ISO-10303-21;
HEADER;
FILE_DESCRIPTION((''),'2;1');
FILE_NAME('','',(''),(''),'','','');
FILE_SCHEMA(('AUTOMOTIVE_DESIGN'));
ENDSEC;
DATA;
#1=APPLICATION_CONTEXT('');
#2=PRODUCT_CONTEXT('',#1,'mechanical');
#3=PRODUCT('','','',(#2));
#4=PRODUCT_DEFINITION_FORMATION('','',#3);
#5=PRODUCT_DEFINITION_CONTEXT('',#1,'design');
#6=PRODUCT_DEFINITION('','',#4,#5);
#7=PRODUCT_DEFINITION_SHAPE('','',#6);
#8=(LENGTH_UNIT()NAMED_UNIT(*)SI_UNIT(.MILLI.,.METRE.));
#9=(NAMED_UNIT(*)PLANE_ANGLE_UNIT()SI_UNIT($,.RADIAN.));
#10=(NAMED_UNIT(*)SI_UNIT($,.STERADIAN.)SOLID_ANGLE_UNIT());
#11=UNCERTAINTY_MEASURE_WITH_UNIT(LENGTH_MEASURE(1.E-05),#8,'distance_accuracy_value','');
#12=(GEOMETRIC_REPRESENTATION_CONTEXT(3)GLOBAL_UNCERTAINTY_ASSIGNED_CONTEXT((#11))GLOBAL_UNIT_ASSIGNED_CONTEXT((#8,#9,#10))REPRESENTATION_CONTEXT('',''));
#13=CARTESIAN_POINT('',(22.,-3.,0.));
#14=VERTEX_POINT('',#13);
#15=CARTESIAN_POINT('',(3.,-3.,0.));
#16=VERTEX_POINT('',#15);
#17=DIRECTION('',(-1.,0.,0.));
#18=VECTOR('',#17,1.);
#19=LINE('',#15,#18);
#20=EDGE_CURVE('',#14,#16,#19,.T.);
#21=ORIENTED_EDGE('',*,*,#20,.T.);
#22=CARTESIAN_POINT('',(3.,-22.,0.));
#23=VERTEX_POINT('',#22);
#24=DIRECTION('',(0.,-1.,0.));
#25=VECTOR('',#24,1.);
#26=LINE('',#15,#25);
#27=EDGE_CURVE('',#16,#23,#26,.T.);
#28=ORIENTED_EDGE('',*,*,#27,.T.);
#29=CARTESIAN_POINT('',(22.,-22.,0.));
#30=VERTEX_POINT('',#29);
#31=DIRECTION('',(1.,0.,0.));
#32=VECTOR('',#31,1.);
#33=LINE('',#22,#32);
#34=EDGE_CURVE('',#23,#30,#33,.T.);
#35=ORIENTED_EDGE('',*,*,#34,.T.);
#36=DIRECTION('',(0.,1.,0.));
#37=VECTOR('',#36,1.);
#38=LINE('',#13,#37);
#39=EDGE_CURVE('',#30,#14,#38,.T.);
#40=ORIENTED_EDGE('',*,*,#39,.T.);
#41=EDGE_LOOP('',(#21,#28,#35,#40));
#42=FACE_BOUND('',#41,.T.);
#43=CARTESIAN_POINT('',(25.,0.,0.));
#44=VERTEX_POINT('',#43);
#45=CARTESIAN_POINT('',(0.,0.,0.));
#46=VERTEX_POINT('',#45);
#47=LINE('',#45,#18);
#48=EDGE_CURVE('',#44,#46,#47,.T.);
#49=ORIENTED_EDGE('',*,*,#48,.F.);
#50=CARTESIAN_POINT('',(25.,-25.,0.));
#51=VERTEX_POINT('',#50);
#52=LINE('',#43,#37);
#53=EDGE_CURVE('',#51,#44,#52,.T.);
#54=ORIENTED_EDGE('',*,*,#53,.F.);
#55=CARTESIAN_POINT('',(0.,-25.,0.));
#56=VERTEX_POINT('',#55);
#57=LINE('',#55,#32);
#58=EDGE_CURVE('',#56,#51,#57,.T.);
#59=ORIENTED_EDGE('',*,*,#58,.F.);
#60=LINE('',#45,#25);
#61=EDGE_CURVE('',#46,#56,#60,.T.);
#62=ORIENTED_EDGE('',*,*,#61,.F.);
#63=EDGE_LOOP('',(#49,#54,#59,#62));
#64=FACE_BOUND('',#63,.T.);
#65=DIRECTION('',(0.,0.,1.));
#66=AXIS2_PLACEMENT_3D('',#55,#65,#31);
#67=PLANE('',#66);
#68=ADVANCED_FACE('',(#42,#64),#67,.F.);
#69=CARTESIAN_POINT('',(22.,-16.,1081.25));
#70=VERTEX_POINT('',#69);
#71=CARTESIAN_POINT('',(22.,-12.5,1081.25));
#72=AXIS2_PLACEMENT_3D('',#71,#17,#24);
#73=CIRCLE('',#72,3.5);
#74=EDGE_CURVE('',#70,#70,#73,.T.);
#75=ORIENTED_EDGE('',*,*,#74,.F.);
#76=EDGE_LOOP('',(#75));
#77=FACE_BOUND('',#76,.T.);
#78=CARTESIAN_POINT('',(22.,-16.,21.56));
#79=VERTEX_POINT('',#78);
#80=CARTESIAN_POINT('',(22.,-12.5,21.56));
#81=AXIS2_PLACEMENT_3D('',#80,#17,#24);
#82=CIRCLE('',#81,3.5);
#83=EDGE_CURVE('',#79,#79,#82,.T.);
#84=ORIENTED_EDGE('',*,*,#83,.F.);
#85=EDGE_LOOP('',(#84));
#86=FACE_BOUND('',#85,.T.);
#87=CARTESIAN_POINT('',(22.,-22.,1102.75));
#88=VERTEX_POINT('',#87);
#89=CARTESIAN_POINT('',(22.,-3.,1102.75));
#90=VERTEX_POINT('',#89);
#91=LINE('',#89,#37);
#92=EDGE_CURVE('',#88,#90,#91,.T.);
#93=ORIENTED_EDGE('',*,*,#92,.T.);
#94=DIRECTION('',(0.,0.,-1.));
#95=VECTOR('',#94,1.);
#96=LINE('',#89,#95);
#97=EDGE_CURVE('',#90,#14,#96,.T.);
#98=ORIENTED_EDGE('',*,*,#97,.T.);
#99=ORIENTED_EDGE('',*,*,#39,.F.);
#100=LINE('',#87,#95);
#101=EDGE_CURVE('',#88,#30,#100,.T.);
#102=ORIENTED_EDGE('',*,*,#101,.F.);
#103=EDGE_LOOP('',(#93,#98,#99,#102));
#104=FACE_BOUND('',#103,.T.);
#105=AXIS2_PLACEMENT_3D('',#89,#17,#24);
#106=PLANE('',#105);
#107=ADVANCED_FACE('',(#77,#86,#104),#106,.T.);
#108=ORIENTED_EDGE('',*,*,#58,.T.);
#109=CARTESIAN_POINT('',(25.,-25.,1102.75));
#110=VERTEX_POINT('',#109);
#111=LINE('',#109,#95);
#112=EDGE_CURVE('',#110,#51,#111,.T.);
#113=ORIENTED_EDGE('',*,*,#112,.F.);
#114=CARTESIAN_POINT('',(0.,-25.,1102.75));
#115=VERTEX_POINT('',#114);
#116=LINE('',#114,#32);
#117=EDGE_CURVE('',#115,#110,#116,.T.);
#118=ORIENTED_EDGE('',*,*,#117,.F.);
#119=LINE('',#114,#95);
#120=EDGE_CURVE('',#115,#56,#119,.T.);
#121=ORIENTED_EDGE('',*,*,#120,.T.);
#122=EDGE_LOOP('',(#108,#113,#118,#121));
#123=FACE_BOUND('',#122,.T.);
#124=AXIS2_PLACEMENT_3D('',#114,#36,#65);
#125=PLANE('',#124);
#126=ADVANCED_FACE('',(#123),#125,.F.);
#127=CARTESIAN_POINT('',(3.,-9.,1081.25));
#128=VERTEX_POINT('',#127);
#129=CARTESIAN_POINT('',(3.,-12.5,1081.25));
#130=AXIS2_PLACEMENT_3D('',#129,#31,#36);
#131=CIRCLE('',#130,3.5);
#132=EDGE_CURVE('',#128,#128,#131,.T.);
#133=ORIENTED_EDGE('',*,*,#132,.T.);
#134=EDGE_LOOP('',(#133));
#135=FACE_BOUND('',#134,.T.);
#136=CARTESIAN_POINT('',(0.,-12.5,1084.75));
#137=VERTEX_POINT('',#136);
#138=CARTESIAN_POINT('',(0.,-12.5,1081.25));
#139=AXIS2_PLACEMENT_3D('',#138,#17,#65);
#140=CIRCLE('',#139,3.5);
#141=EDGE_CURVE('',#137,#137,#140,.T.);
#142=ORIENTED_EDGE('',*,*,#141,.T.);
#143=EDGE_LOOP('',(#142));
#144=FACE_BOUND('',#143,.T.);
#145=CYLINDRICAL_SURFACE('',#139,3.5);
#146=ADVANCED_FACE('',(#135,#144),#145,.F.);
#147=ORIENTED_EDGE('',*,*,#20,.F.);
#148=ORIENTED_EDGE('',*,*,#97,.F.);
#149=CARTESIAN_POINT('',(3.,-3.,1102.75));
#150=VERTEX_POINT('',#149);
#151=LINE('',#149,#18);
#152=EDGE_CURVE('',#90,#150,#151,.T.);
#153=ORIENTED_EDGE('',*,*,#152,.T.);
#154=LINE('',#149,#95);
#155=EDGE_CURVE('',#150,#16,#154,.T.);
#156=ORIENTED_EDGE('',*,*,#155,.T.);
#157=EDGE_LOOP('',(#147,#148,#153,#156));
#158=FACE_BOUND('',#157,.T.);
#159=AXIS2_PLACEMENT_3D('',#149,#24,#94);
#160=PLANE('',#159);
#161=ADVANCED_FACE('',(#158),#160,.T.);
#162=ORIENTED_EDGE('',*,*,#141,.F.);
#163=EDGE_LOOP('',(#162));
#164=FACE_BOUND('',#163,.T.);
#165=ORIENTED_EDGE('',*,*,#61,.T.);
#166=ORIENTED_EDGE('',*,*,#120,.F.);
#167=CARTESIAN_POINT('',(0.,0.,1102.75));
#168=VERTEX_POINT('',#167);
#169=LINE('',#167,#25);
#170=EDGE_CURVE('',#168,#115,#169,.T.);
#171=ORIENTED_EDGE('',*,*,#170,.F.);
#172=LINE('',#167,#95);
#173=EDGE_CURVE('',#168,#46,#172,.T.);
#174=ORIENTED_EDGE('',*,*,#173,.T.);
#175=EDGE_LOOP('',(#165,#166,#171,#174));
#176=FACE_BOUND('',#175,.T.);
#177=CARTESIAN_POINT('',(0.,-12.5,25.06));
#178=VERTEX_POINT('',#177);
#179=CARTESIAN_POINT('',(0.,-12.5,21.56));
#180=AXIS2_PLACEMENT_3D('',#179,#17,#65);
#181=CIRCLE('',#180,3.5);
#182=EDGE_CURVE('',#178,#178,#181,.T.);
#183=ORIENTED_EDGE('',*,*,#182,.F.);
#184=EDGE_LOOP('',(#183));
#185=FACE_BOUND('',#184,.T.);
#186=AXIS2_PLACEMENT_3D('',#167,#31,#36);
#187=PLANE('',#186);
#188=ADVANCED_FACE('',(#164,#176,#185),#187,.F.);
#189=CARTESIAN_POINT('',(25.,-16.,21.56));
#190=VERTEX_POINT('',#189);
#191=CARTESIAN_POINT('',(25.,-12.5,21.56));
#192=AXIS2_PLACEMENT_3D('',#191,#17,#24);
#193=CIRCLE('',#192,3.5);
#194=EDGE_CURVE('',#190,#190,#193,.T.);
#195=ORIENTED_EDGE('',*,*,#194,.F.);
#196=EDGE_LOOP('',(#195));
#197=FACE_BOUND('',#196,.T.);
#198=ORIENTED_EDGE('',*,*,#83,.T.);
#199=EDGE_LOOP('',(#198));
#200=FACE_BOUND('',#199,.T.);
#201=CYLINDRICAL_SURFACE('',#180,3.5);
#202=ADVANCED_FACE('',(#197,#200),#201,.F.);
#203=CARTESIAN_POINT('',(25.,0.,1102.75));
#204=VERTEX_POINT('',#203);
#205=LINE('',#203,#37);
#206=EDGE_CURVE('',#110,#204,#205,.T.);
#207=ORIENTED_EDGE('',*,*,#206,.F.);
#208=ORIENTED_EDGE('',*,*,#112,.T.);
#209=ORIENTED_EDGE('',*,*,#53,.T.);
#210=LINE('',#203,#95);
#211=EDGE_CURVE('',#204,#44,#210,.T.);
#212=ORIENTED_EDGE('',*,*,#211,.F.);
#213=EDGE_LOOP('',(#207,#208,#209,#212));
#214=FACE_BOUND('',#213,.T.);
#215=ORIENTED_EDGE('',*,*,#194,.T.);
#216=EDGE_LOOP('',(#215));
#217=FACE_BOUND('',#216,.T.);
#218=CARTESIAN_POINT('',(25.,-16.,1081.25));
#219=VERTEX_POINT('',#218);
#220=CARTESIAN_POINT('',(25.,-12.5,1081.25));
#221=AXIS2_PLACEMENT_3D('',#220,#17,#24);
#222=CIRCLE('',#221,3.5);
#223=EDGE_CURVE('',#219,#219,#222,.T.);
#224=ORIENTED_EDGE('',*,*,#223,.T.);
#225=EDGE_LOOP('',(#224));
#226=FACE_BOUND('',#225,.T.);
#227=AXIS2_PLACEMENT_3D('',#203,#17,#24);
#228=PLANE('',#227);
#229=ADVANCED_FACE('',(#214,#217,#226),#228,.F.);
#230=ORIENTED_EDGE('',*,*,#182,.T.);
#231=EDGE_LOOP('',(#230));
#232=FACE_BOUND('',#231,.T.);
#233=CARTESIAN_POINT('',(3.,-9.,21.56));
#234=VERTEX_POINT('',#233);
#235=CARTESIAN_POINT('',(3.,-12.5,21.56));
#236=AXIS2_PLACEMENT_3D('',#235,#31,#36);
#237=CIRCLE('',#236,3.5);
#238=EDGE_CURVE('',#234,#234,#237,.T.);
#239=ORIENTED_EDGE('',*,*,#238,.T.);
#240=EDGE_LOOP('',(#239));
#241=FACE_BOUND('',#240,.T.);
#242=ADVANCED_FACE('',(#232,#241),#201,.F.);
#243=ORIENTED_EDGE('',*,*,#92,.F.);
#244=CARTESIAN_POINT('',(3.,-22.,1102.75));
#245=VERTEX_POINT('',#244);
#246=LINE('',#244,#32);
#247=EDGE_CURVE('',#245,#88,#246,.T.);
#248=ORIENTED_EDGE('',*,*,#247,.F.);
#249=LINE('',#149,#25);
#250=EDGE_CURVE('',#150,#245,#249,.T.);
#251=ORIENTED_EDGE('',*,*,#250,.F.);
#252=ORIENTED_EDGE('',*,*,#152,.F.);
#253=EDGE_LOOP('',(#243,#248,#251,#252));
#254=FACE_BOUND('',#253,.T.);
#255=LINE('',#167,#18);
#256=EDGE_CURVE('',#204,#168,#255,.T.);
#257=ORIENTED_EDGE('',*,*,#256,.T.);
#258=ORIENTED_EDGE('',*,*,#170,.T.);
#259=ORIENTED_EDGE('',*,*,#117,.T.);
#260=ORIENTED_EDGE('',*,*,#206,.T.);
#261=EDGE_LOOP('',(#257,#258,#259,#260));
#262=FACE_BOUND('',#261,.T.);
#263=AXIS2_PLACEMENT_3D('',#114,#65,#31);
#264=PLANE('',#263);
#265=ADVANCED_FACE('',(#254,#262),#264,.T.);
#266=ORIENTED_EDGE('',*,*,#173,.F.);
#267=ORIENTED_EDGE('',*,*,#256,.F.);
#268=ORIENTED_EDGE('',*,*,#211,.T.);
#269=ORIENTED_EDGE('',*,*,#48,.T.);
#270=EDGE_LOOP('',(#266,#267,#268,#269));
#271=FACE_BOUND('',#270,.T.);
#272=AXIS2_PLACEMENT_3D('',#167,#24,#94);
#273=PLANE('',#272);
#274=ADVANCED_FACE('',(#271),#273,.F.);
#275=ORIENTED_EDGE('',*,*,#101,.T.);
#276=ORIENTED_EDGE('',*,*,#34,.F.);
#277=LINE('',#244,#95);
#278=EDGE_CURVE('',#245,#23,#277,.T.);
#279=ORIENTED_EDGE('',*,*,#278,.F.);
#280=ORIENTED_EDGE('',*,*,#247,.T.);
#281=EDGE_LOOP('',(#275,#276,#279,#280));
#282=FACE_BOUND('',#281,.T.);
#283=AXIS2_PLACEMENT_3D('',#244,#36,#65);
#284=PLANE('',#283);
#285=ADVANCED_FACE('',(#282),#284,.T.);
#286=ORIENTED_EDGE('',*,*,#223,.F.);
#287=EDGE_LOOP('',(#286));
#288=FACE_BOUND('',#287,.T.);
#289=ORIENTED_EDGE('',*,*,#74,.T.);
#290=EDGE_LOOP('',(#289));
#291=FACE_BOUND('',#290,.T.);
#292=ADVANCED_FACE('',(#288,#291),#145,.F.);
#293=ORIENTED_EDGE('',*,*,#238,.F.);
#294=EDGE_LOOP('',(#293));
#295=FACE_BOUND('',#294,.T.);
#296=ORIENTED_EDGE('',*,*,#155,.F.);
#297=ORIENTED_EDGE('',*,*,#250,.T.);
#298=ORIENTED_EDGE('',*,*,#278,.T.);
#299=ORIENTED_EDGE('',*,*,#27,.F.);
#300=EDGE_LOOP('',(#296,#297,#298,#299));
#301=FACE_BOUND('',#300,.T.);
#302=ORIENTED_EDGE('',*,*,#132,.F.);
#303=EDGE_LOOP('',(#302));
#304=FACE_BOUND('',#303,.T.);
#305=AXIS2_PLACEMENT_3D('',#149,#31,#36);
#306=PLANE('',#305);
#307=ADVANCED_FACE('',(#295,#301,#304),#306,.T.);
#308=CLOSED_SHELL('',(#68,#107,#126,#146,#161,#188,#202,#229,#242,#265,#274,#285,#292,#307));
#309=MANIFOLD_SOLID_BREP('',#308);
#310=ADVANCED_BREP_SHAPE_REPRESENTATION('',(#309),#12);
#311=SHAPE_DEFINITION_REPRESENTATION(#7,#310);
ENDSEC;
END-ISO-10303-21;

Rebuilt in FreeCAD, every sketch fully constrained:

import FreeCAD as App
import Part
import Sketcher

V = App.Vector
Q = App.Units.Quantity

doc = App.newDocument("Part")
body = doc.addObject("PartDesign::Body", "Body")

# Sketch on XY plane
sketch1 = doc.addObject("Sketcher::SketchObject", "Sketch")
body.addObject(sketch1)
sketch1.AttachmentSupport = (doc.XY_Plane, [""])
sketch1.MapMode = "FlatFace"
sketch1.addGeometry([
    Part.LineSegment(V(0, 0, 0), V(0, -25, 0)),  # 0
    Part.LineSegment(V(0, -25, 0), V(25, -25, 0)),  # 1
    Part.LineSegment(V(25, -25, 0), V(25, 0, 0)),  # 2
    Part.LineSegment(V(25, 0, 0), V(0, 0, 0)),  # 3
    Part.LineSegment(V(22, -22, 0), V(3, -22, 0)),  # 4
    Part.LineSegment(V(3, -22, 0), V(3, -3, 0)),  # 5
    Part.LineSegment(V(3, -3, 0), V(22, -3, 0)),  # 6
    Part.LineSegment(V(22, -3, 0), V(22, -22, 0)),  # 7
], False)
sketch1.addConstraint([
    Sketcher.Constraint("Coincident", 0, 2, 1, 1),
    Sketcher.Constraint("Coincident", 1, 2, 2, 1),
    Sketcher.Constraint("Coincident", 2, 2, 3, 1),
    Sketcher.Constraint("Coincident", 3, 2, 0, 1),
    Sketcher.Constraint("Coincident", 4, 2, 5, 1),
    Sketcher.Constraint("Coincident", 5, 2, 6, 1),
    Sketcher.Constraint("Coincident", 6, 2, 7, 1),
    Sketcher.Constraint("Coincident", 7, 2, 4, 1),
    Sketcher.Constraint("Vertical", 0),
    Sketcher.Constraint("Horizontal", 1),
    Sketcher.Constraint("Vertical", 2),
    Sketcher.Constraint("Horizontal", 3),
    Sketcher.Constraint("Horizontal", 4),
    Sketcher.Constraint("Vertical", 5),
    Sketcher.Constraint("Horizontal", 6),
    Sketcher.Constraint("Vertical", 7),
    Sketcher.Constraint("Coincident", 3, 2, -1, 1),
    Sketcher.Constraint("Equal", 3, 0),
    Sketcher.Constraint("Equal", 6, 5),
    Sketcher.Constraint("DistanceX", 1, 1, 1, 2, 25.0),
    Sketcher.Constraint("DistanceX", 4, 2, 4, 1, 19.0),
    Sketcher.Constraint("DistanceX", -1, 1, 4, 2, 3.0),
    Sketcher.Constraint("DistanceY", 4, 2, -1, 1, 22.0),
])
pad1 = doc.addObject("PartDesign::Pad", "Pad")
body.addObject(pad1)
pad1.Profile = sketch1
pad1.Length = 1102.75

# Sketch on XZ plane
sketch2 = doc.addObject("Sketcher::SketchObject", "Sketch001")
body.addObject(sketch2)
sketch2.AttachmentSupport = (doc.XZ_Plane, [""])
sketch2.MapMode = "FlatFace"
sketch2.AttachmentOffset = App.Placement(V(0, 0, 12.5), App.Rotation())
sketch2.addGeometry([
    Part.LineSegment(V(32.103012, 1081.25, 0), V(0, 1081.25, 0)),
    Part.LineSegment(V(0, 1081.25, 0), V(0, 1084.75, 0)),
    Part.LineSegment(V(0, 1084.75, 0), V(30, 1084.75, 0)),
    Part.LineSegment(V(30, 1084.75, 0), V(32.103012, 1081.25, 0)),
], False)
sketch2.addGeometry(Part.LineSegment(V(0, 1081.25, 0), V(32.103012, 1081.25, 0)), True)  # axis
sketch2.addConstraint([
    Sketcher.Constraint("Coincident", 0, 2, 1, 1),
    Sketcher.Constraint("Coincident", 1, 2, 2, 1),
    Sketcher.Constraint("Coincident", 2, 2, 3, 1),
    Sketcher.Constraint("Coincident", 3, 2, 0, 1),
    Sketcher.Constraint("Horizontal", 0),
    Sketcher.Constraint("Vertical", 1),
    Sketcher.Constraint("Horizontal", 2),
    Sketcher.Constraint("Horizontal", 4),
    Sketcher.Constraint("Coincident", 4, 1, 0, 2),
    Sketcher.Constraint("PointOnObject", 0, 2, -2),
    Sketcher.Constraint("Equal", 0, 4),
    Sketcher.Constraint("DistanceX", 2, 1, 2, 2, 30.0),
    Sketcher.Constraint("Angle", 3, Q("-59 deg")),
    Sketcher.Constraint("DistanceY", 1, 1, 1, 2, 3.5),
    Sketcher.Constraint("DistanceY", -1, 1, 0, 2, 1081.25),
])
groove = doc.addObject("PartDesign::Groove", "Groove")
body.addObject(groove)
groove.Profile = sketch2
groove.ReferenceAxis = (sketch2, ["Axis0"])
groove.Angle = 360
doc.recompute()

linearpattern = doc.addObject("PartDesign::LinearPattern", "LinearPattern")
body.addObject(linearpattern)
linearpattern.Originals = [groove]
linearpattern.Direction = (doc.Z_Axis, [""])
linearpattern.Mode = "offset"
linearpattern.Offset = 1059.69
linearpattern.Occurrences = 2
linearpattern.Reversed = True
body.Tip = linearpattern

doc.recompute()
